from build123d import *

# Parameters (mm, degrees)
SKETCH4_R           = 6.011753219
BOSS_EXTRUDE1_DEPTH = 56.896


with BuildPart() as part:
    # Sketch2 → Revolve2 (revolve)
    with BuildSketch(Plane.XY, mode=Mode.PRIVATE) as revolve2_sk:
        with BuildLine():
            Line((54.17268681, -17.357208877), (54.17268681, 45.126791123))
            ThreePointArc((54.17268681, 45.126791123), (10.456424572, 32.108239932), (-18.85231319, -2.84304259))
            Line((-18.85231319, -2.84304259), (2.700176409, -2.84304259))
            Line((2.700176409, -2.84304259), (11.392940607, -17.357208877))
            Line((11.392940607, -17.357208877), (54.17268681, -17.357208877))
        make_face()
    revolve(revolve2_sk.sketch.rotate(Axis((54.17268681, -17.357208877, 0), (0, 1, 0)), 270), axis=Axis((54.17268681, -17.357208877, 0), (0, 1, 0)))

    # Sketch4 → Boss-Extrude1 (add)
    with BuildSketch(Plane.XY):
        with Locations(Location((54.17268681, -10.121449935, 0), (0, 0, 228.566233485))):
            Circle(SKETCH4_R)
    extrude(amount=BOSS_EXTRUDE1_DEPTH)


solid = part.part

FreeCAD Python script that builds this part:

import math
import FreeCAD as App
import Part
import Sketcher
from FreeCAD import Vector
Q = App.Units.Quantity

doc = App.newDocument("Part")
body = doc.addObject("PartDesign::Body", "Body")

# Sketch on XY plane
sketch1 = body.newObject("Sketcher::SketchObject", "Sketch")
sketch1.AttachmentSupport = (doc.getObject("XY_Plane"), [""])
sketch1.MapMode = "FlatFace"
sketch1.addGeometry([
    Part.LineSegment(Vector(54, -17, 0), Vector(54, 45, 0)),  # 0
    Part.ArcOfCircle(Part.Circle(Vector(54, -34, 0), Vector(0, 0, 1), 79), math.radians(90), math.radians(157)),  # 1
    Part.LineSegment(Vector(-19, -3, 0), Vector(3, -3, 0)),  # 2
    Part.LineSegment(Vector(3, -3, 0), Vector(11, -17, 0)),  # 3
    Part.LineSegment(Vector(11, -17, 0), Vector(54, -17, 0)),  # 4
], False)
sketch1.addGeometry(Part.LineSegment(Vector(54, -34, 0), Vector(54, 45, 0)), True)  # axis
sketch1.addConstraint([
    Sketcher.Constraint("Coincident", 0, 2, 1, 1),
    Sketcher.Constraint("Coincident", 1, 2, 2, 1),
    Sketcher.Constraint("Coincident", 2, 2, 3, 1),
    Sketcher.Constraint("Coincident", 3, 2, 4, 1),
    Sketcher.Constraint("Coincident", 4, 2, 0, 1),
    Sketcher.Constraint("Vertical", 0),
    Sketcher.Constraint("Horizontal", 2),
    Sketcher.Constraint("Horizontal", 4),
    Sketcher.Constraint("Vertical", 5),
    Sketcher.Constraint("Coincident", 5, 2, 0, 2),
    Sketcher.Constraint("Horizontal", 1, 3, 5, 1),
    Sketcher.Constraint("DistanceY", 0, 1, 0, 2, Q("2.46 in")),
    Sketcher.Constraint("Radius", 1, Q("79.286111 mm")),
    Sketcher.Constraint("DistanceX", 1, 2, 0, 2, Q("2.875 in")),
    Sketcher.Constraint("DistanceX", 2, 1, 2, 2, Q("21.55249 mm")),
    Sketcher.Constraint("Distance", 3, Q("16.918191 mm")),
    Sketcher.Constraint("DistanceX", 4, 1, 4, 2, Q("42.779746 mm")),
    Sketcher.Constraint("DistanceX", -1, 1, 1, 3, Q("53.98718 mm")),
    Sketcher.Constraint("DistanceY", -1, 1, 0, 2, Q("45.126791 mm")),
])
revolution = body.newObject("PartDesign::Revolution", "Revolution")
revolution.Profile = sketch1
revolution.ReferenceAxis = (sketch1, ["Axis0"])
revolution.Angle = 360

# Sketch on XY plane
sketch2 = body.newObject("Sketcher::SketchObject", "Sketch001")
sketch2.AttachmentSupport = (doc.getObject("XY_Plane"), [""])
sketch2.MapMode = "FlatFace"
sketch2.addGeometry(Part.Circle(Vector(54, -10, 0), Vector(0, 0, 1), 6), False)
sketch2.addConstraint([
    Sketcher.Constraint("Diameter", 0, Q("12.023506 mm")),
    Sketcher.Constraint("DistanceY", 0, 3, -1, 1, Q("10.12145 mm")),
    Sketcher.Constraint("DistanceX", -1, 1, 0, 3, Q("54.172687 mm")),
])
pad1 = body.newObject("PartDesign::Pad", "Pad")
pad1.Profile = sketch2
pad1.Length = Q("2.24 in")

doc.recompute()
